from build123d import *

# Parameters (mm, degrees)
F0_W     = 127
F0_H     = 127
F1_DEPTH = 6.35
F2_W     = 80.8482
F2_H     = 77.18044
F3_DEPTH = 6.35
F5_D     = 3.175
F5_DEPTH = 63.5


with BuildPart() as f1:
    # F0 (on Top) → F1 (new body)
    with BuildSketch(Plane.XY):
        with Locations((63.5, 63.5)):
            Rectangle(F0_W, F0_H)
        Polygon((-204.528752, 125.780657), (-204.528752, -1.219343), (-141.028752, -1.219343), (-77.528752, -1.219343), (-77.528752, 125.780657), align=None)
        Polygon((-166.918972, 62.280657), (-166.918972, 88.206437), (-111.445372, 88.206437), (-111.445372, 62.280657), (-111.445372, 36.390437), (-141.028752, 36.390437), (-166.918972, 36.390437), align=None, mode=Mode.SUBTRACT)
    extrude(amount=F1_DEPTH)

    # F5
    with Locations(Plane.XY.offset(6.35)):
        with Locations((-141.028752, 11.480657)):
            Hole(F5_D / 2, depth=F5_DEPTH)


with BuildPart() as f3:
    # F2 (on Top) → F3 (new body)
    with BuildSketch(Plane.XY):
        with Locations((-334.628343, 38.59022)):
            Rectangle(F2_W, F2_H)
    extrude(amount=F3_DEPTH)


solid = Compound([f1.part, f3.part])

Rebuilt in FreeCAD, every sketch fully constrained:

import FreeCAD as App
import Part
import Sketcher
Q = App.Units.Quantity

doc = App.newDocument("Part")
body = doc.addObject("PartDesign::Body", "Body")
body.AllowCompound = True

# Sketch on XY plane
sketch1 = doc.addObject("Sketcher::SketchObject", "Sketch")
body.addObject(sketch1)
sketch1.AttachmentSupport = (doc.XY_Plane, [""])
sketch1.MapMode = "FlatFace"
sketch1.addGeometry([
    Part.LineSegment(App.Vector(0, 127, 0), App.Vector(0, 0, 0)),  # 0
    Part.LineSegment(App.Vector(0, 0, 0), App.Vector(127, 0, 0)),  # 1
    Part.LineSegment(App.Vector(127, 0, 0), App.Vector(127, 127, 0)),  # 2
    Part.LineSegment(App.Vector(127, 127, 0), App.Vector(0, 127, 0)),  # 3
    Part.LineSegment(App.Vector(-205, 126, 0), App.Vector(-205, -1, 0)),  # 4
    Part.LineSegment(App.Vector(-205, -1, 0), App.Vector(-78, -1, 0)),  # 5
    Part.LineSegment(App.Vector(-78, -1, 0), App.Vector(-78, 126, 0)),  # 6
    Part.LineSegment(App.Vector(-78, 126, 0), App.Vector(-205, 126, 0)),  # 7
    Part.LineSegment(App.Vector(-167, 36, 0), App.Vector(-167, 88, 0)),  # 8
    Part.LineSegment(App.Vector(-167, 88, 0), App.Vector(-111, 88, 0)),  # 9
    Part.LineSegment(App.Vector(-111, 88, 0), App.Vector(-111, 36, 0)),  # 10
    Part.LineSegment(App.Vector(-111, 36, 0), App.Vector(-167, 36, 0)),  # 11
], False)
sketch1.addConstraint([
    Sketcher.Constraint("Coincident", 0, 2, 1, 1),
    Sketcher.Constraint("Coincident", 1, 2, 2, 1),
    Sketcher.Constraint("Coincident", 2, 2, 3, 1),
    Sketcher.Constraint("Coincident", 3, 2, 0, 1),
    Sketcher.Constraint("Coincident", 4, 2, 5, 1),
    Sketcher.Constraint("Coincident", 5, 2, 6, 1),
    Sketcher.Constraint("Coincident", 6, 2, 7, 1),
    Sketcher.Constraint("Coincident", 7, 2, 4, 1),
    Sketcher.Constraint("Coincident", 8, 2, 9, 1),
    Sketcher.Constraint("Coincident", 9, 2, 10, 1),
    Sketcher.Constraint("Coincident", 10, 2, 11, 1),
    Sketcher.Constraint("Coincident", 11, 2, 8, 1),
    Sketcher.Constraint("Vertical", 0),
    Sketcher.Constraint("Horizontal", 1),
    Sketcher.Constraint("Vertical", 2),
    Sketcher.Constraint("Horizontal", 3),
    Sketcher.Constraint("Vertical", 4),
    Sketcher.Constraint("Horizontal", 5),
    Sketcher.Constraint("Vertical", 6),
    Sketcher.Constraint("Horizontal", 7),
    Sketcher.Constraint("Vertical", 8),
    Sketcher.Constraint("Horizontal", 9),
    Sketcher.Constraint("Vertical", 10),
    Sketcher.Constraint("Horizontal", 11),
    Sketcher.Constraint("Coincident", 0, 2, -1, 1),
    Sketcher.Constraint("Equal", 3, 5),
    Sketcher.Constraint("Equal", 7, 0),
    Sketcher.Constraint("Equal", 2, 4),
    Sketcher.Constraint("DistanceX", 1, 1, 1, 2, Q("5 in")),
    Sketcher.Constraint("DistanceY", 8, 1, 8, 2, Q("2.04 in")),
    Sketcher.Constraint("DistanceX", 9, 1, 9, 2, Q("2.184 in")),
    Sketcher.Constraint("DistanceX", 7, 2, 8, 2, Q("1.4807 in")),
    Sketcher.Constraint("DistanceY", 8, 2, 7, 2, Q("1.4793 in")),
    Sketcher.Constraint("DistanceX", 4, 2, -1, 1, 204.528752),
    Sketcher.Constraint("DistanceY", 4, 2, -1, 1, 1.219343),
])
pad1 = doc.addObject("PartDesign::Pad", "Pad")
body.addObject(pad1)
pad1.Profile = sketch1
pad1.Length = Q("0.25 in")

# Sketch on XY plane
sketch2 = doc.addObject("Sketcher::SketchObject", "Sketch001")
body.addObject(sketch2)
sketch2.AttachmentSupport = (doc.XY_Plane, [""])
sketch2.MapMode = "FlatFace"
sketch2.AttachmentOffset = App.Placement(App.Vector(0, 0, 0.25 * 25.4), App.Rotation())
sketch2.addGeometry(Part.Circle(App.Vector(-141, 11.5, 0), App.Vector(0, 0, 1), 1.6), False)
sketch2.addConstraint([
    Sketcher.Constraint("Diameter", 0, Q("0.125 in")),
    Sketcher.Constraint("DistanceX", 0, 3, -1, 1, 141.028752),
    Sketcher.Constraint("DistanceY", -1, 1, 0, 3, 11.480657),
])
doc.recompute()
hole = doc.addObject("PartDesign::Hole", "Hole")
body.addObject(hole)
hole.Profile = sketch2
hole.ThreadType = "None"
hole.Diameter = Q("0.125 in")
hole.DepthType = "Dimension"
hole.Depth = Q("2.5 in")
hole.DrillPoint = "Flat"
body2 = doc.addObject("PartDesign::Body", "Body001")

# Sketch on XY plane
sketch3 = doc.addObject("Sketcher::SketchObject", "Sketch002")
body2.addObject(sketch3)
sketch3.AttachmentSupport = (doc.getObject("XY_Plane001"), [""])
sketch3.MapMode = "FlatFace"
sketch3.addGeometry([
    Part.LineSegment(App.Vector(-375, 77, 0), App.Vector(-375, 0, 0)),
    Part.LineSegment(App.Vector(-375, 0, 0), App.Vector(-294, 0, 0)),
    Part.LineSegment(App.Vector(-294, 0, 0), App.Vector(-294, 77, 0)),
    Part.LineSegment(App.Vector(-294, 77, 0), App.Vector(-375, 77, 0)),
], False)
sketch3.addConstraint([
    Sketcher.Constraint("Coincident", 0, 2, 1, 1),
    Sketcher.Constraint("Coincident", 1, 2, 2, 1),
    Sketcher.Constraint("Coincident", 2, 2, 3, 1),
    Sketcher.Constraint("Coincident", 3, 2, 0, 1),
    Sketcher.Constraint("Vertical", 0),
    Sketcher.Constraint("Horizontal", 1),
    Sketcher.Constraint("Vertical", 2),
    Sketcher.Constraint("Horizontal", 3),
    Sketcher.Constraint("PointOnObject", 0, 2, -1),
    Sketcher.Constraint("DistanceX", 1, 1, 1, 2, Q("3.183 in")),
    Sketcher.Constraint("DistanceY", 0, 2, 0, 1, Q("3.0386 in")),
    Sketcher.Constraint("DistanceX", 0, 2, -1, 1, 375.052443),
])
pad2 = doc.addObject("PartDesign::Pad", "Pad001")
body2.addObject(pad2)
pad2.Profile = sketch3
pad2.Length = Q("0.25 in")

doc.recompute()
